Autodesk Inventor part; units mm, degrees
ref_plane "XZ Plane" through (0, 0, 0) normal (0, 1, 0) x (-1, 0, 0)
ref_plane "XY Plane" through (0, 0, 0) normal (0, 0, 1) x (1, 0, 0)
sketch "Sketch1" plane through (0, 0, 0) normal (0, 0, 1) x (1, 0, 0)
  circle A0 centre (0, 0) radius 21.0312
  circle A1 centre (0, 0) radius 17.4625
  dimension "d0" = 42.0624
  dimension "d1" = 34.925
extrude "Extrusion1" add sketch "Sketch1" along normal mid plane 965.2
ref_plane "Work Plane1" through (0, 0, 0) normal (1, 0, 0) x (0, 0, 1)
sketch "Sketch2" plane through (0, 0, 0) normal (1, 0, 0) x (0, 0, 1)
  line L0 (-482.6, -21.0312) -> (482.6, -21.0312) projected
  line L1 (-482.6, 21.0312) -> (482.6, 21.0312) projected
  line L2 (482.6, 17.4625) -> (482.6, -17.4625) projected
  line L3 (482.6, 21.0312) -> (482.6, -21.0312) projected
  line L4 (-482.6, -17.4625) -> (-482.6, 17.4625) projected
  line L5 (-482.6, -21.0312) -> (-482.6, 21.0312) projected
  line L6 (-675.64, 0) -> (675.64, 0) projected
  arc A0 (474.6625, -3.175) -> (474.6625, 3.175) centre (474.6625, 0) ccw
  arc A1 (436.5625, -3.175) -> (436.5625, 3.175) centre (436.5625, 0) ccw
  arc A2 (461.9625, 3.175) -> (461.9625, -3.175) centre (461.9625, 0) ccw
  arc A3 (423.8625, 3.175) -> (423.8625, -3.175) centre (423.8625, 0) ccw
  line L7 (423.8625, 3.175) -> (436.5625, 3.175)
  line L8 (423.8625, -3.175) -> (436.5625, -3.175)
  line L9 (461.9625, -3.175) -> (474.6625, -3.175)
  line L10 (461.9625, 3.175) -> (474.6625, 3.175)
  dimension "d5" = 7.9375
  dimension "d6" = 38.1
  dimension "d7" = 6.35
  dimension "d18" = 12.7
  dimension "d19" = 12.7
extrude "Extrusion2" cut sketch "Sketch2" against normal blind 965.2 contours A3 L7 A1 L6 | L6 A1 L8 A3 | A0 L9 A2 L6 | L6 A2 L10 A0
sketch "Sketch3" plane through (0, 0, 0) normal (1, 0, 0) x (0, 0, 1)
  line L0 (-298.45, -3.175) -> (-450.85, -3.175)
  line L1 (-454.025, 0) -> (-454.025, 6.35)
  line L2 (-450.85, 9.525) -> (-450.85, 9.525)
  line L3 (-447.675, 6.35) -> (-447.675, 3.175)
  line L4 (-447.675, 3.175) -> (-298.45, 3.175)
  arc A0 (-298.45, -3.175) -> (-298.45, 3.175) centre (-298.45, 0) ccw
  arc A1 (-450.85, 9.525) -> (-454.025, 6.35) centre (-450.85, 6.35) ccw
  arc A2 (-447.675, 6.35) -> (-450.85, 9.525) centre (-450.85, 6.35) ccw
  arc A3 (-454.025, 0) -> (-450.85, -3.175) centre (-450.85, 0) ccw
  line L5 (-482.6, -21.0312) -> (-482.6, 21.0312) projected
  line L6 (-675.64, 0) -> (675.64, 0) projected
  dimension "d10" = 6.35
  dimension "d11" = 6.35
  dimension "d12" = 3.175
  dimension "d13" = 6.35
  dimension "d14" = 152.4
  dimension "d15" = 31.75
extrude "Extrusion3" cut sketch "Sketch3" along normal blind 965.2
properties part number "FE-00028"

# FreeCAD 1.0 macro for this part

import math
import FreeCAD as App
import Part
import Sketcher

V = App.Vector
Q = App.Units.Quantity

doc = App.newDocument("Part")
body = doc.addObject("PartDesign::Body", "Body")

sketch1 = body.newObject("Sketcher::SketchObject", "Sketch")
sketch1.AttachmentSupport = (doc.getObject("XY_Plane"), [""])
sketch1.MapMode = "FlatFace"
sketch1.addGeometry([
    Part.Circle(V(0, 0, 0), V(0, 0, 1), 21.0312),
    Part.Circle(V(0, 0, 0), V(0, 0, 1), 17.4625),
], False)
sketch1.addConstraint([
    Sketcher.Constraint("Coincident", 0, 3, -1, 1),
    Sketcher.Constraint("Coincident", 1, 3, -1, 1),
    Sketcher.Constraint("Diameter", 0, Q("1.656 in")),
    Sketcher.Constraint("Diameter", 1, Q("1.375 in")),
])
pad1 = body.newObject("PartDesign::Pad", "Pad")
pad1.Profile = sketch1
pad1.Length = Q("38 in")
pad1.Midplane = True

sketch2 = body.newObject("Sketcher::SketchObject", "Sketch001")
sketch2.AttachmentSupport = (doc.getObject("YZ_Plane"), [""])
sketch2.MapMode = "FlatFace"
sketch2.addGeometry([
    Part.ArcOfCircle(Part.Circle(V(0, 423.8625, 0), V(0, 0, 1), 3.175), math.radians(180), math.radians(360)),
    Part.LineSegment(V(3.175, 423.8625, 0), V(3.175, 436.5625, 0)),
    Part.ArcOfCircle(Part.Circle(V(0, 436.5625, 0), V(0, 0, 1), 3.175), math.radians(0), math.radians(180)),
    Part.LineSegment(V(-3.175, 436.5625, 0), V(-3.175, 423.8625, 0)),
    Part.ArcOfCircle(Part.Circle(V(0, 474.6625, 0), V(0, 0, 1), 3.175), math.radians(0), math.radians(180)),
    Part.LineSegment(V(-3.175, 474.6625, 0), V(-3.175, 461.9625, 0)),
    Part.ArcOfCircle(Part.Circle(V(0, 461.9625, 0), V(0, 0, 1), 3.175), math.radians(180), math.radians(360)),
    Part.LineSegment(V(3.175, 461.9625, 0), V(3.175, 474.6625, 0)),
], False)
sketch2.addConstraint([
    Sketcher.Constraint("Tangent", 0, 2, 1, 1),
    Sketcher.Constraint("Tangent", 1, 2, 2, 1),
    Sketcher.Constraint("Tangent", 2, 2, 3, 1),
    Sketcher.Constraint("Tangent", 3, 2, 0, 1),
    Sketcher.Constraint("Tangent", 4, 2, 5, 1),
    Sketcher.Constraint("Tangent", 5, 2, 6, 1),
    Sketcher.Constraint("Tangent", 6, 2, 7, 1),
    Sketcher.Constraint("Tangent", 7, 2, 4, 1),
    Sketcher.Constraint("Vertical", 1),
    Sketcher.Constraint("Vertical", 3),
    Sketcher.Constraint("Vertical", 5),
    Sketcher.Constraint("Vertical", 7),
    Sketcher.Constraint("Equal", 2, 4),
    Sketcher.Constraint("PointOnObject", 0, 3, -2),
    Sketcher.Constraint("PointOnObject", 4, 3, -2),
    Sketcher.Constraint("Equal", 3, 5),
    Sketcher.Constraint("DistanceY", 1, 1, 1, 2, Q("0.5 in")),
    Sketcher.Constraint("Radius", 0, Q("0.125 in")),
    Sketcher.Constraint("DistanceY", 2, 3, 4, 3, Q("1.5 in")),
    Sketcher.Constraint("DistanceY", -1, 1, 0, 3, Q("16.6875 in")),
])
pocket1 = body.newObject("PartDesign::Pocket", "Pocket")
pocket1.Profile = sketch2
pocket1.Length = Q("38 in")

sketch3 = body.newObject("Sketcher::SketchObject", "Sketch002")
sketch3.AttachmentSupport = (doc.getObject("YZ_Plane"), [""])
sketch3.MapMode = "FlatFace"
sketch3.addGeometry([
    Part.LineSegment(V(3.175, -450.85, 0), V(3.175, -298.45, 0)),
    Part.ArcOfCircle(Part.Circle(V(0, -298.45, 0), V(0, 0, 1), 3.175), math.radians(0), math.radians(180)),
    Part.LineSegment(V(-3.175, -298.45, 0), V(-3.175, -447.675, 0)),
    Part.LineSegment(V(-3.175, -447.675, 0), V(-6.35, -447.675, 0)),
    Part.ArcOfCircle(Part.Circle(V(-6.35, -450.85, 0), V(0, 0, 1), 3.175), math.radians(90), math.radians(270)),
    Part.LineSegment(V(-6.35, -454.025, 0), V(0, -454.025, 0)),
    Part.ArcOfCircle(Part.Circle(V(0, -450.85, 0), V(0, 0, 1), 3.175), math.radians(-90), math.radians(0)),
], False)
sketch3.addConstraint([
    Sketcher.Constraint("Tangent", 0, 2, 1, 1),
    Sketcher.Constraint("Tangent", 1, 2, 2, 1),
    Sketcher.Constraint("Coincident", 2, 2, 3, 1),
    Sketcher.Constraint("Tangent", 3, 2, 4, 1),
    Sketcher.Constraint("Tangent", 4, 2, 5, 1),
    Sketcher.Constraint("Tangent", 5, 2, 6, 1),
    Sketcher.Constraint("Tangent", 6, 2, 0, 1),
    Sketcher.Constraint("Vertical", 0),
    Sketcher.Constraint("Vertical", 2),
    Sketcher.Constraint("Horizontal", 3),
    Sketcher.Constraint("Horizontal", 5),
    Sketcher.Constraint("Equal", 1, 4),
    Sketcher.Constraint("Equal", 4, 6),
    Sketcher.Constraint("PointOnObject", 1, 3, -2),
    Sketcher.Constraint("DistanceY", 0, 1, 0, 2, Q("6 in")),
    Sketcher.Constraint("Radius", 1, Q("0.125 in")),
    Sketcher.Constraint("DistanceX", 5, 1, 5, 2, Q("0.25 in")),
    Sketcher.Constraint("DistanceY", 1, 3, -1, 1, Q("11.75 in")),
])
pocket2 = body.newObject("PartDesign::Pocket", "Pocket001")
pocket2.Profile = sketch3
pocket2.Length = Q("38 in")
pocket2.Reversed = True

doc.recompute()
